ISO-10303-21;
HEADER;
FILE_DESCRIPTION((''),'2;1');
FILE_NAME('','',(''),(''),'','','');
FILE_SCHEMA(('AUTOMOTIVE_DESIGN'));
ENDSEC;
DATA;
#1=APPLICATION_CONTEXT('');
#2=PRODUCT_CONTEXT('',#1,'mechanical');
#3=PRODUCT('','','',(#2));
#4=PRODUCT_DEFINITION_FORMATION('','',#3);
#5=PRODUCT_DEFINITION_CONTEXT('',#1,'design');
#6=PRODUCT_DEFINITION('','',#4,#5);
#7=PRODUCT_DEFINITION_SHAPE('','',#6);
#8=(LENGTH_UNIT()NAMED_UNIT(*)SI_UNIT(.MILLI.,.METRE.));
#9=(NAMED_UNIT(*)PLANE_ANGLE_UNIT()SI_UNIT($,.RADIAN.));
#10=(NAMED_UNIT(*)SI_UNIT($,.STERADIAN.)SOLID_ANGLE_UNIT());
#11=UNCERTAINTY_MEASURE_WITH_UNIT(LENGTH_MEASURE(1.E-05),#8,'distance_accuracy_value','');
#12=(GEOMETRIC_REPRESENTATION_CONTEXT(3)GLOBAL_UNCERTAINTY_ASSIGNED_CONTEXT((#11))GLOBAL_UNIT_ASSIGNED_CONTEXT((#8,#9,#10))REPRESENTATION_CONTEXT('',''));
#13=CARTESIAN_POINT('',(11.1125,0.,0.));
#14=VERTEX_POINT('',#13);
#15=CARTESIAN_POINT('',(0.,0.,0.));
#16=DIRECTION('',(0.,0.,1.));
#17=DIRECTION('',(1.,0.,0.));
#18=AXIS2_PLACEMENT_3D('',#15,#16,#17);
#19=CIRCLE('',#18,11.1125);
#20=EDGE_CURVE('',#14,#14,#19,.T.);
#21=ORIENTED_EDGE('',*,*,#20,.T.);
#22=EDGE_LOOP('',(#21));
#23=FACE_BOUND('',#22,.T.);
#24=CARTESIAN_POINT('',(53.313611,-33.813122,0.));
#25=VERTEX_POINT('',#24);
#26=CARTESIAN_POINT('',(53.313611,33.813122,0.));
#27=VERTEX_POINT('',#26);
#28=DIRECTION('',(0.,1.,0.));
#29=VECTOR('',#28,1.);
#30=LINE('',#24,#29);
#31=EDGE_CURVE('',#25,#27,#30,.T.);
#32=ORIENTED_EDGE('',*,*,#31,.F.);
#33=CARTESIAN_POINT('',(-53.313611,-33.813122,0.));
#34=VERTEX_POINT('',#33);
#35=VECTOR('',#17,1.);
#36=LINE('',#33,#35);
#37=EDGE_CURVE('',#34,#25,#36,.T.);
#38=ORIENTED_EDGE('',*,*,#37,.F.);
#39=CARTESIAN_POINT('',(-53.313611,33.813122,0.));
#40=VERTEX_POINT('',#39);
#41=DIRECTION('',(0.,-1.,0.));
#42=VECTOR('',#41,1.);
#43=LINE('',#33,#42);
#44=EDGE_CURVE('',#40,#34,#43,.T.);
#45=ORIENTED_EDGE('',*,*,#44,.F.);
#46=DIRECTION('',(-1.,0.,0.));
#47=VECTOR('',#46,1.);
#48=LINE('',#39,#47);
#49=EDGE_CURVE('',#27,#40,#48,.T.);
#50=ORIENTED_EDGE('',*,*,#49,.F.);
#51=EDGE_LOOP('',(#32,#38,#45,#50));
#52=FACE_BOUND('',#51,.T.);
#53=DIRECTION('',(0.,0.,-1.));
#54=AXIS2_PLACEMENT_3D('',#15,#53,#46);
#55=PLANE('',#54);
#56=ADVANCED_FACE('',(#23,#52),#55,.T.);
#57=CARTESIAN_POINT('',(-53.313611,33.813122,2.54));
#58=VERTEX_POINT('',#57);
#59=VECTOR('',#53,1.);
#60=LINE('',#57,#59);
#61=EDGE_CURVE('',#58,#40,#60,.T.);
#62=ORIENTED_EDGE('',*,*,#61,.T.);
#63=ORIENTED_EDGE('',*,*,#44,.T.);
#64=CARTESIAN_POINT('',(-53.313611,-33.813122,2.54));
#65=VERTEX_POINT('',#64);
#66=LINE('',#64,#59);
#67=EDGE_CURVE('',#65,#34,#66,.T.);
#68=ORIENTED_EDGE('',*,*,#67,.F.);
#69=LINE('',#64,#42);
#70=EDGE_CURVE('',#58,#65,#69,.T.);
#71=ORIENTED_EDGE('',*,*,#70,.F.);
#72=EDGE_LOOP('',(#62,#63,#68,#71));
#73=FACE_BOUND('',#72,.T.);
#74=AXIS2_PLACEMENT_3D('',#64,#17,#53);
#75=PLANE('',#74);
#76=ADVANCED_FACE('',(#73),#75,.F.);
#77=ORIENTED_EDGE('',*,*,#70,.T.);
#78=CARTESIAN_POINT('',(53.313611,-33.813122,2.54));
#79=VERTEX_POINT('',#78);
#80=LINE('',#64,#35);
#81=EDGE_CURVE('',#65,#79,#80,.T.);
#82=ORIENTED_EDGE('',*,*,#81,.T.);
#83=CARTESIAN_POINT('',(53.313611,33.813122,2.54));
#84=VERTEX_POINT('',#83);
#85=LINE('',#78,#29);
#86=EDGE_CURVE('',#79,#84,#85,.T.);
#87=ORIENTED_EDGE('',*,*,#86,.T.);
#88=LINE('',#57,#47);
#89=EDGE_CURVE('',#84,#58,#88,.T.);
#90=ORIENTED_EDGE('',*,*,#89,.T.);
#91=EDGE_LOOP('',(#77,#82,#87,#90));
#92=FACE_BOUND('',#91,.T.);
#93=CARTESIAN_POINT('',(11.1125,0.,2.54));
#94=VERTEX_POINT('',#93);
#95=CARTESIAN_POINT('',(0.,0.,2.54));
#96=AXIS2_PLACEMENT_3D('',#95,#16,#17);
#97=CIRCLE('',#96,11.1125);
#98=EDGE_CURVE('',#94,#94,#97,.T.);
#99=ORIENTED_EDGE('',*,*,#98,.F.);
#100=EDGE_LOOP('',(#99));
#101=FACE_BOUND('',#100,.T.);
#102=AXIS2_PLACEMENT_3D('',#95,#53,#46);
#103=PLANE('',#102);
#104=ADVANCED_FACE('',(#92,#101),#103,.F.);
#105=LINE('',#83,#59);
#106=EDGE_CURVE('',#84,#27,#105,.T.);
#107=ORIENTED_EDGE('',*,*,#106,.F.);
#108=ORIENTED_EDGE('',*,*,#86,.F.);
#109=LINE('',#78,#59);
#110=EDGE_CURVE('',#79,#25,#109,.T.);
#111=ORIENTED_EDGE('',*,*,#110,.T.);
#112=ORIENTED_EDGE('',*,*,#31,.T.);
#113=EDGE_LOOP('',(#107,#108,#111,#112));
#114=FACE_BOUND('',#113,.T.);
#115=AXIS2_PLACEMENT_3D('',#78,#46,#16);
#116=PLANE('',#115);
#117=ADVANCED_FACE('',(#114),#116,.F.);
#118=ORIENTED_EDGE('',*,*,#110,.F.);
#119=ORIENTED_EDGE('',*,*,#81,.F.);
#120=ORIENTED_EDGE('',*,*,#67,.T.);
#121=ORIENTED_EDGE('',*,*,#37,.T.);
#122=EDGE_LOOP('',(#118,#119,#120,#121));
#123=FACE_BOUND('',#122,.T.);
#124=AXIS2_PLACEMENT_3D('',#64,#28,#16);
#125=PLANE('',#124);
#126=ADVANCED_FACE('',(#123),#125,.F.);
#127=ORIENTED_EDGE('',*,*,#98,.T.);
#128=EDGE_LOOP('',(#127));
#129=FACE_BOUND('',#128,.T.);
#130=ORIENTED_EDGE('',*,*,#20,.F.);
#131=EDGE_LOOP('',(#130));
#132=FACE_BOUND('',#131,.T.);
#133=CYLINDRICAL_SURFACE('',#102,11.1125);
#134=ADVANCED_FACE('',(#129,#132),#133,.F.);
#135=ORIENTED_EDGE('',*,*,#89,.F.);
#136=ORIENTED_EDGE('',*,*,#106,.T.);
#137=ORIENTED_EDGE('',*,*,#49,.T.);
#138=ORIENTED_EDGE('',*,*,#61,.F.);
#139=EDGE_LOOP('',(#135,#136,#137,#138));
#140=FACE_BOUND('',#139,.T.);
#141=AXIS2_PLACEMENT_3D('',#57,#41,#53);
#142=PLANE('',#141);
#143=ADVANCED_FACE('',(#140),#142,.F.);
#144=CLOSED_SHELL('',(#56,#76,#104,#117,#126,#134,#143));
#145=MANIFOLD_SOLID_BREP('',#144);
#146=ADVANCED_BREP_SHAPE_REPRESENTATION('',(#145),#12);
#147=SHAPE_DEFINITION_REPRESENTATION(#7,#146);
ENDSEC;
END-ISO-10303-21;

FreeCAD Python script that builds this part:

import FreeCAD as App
import Part
import Sketcher
from FreeCAD import Vector
Q = App.Units.Quantity

doc = App.newDocument("Part")
body = doc.addObject("PartDesign::Body", "Body")

sketch1 = doc.addObject("Sketcher::SketchObject", "Sketch")
body.addObject(sketch1)
sketch1.AttachmentSupport = (doc.XY_Plane, [""])
sketch1.MapMode = "FlatFace"
sketch1.addGeometry([
    Part.LineSegment(Vector(-53, 34, 0), Vector(-53, -34, 0)),
    Part.LineSegment(Vector(-53, -34, 0), Vector(53, -34, 0)),
    Part.LineSegment(Vector(53, -34, 0), Vector(53, 34, 0)),
    Part.LineSegment(Vector(53, 34, 0), Vector(-53, 34, 0)),
    Part.Circle(Vector(0, 0, 0), Vector(0, 0, 1), 11),
], False)
sketch1.addConstraint([
    Sketcher.Constraint("Coincident", 0, 2, 1, 1),
    Sketcher.Constraint("Coincident", 1, 2, 2, 1),
    Sketcher.Constraint("Coincident", 2, 2, 3, 1),
    Sketcher.Constraint("Coincident", 3, 2, 0, 1),
    Sketcher.Constraint("Vertical", 0),
    Sketcher.Constraint("Horizontal", 1),
    Sketcher.Constraint("Vertical", 2),
    Sketcher.Constraint("Horizontal", 3),
    Sketcher.Constraint("Coincident", 4, 3, -1, 1),
    Sketcher.Constraint("Symmetric", 0, 2, 2, 2, -1, 1),
    Sketcher.Constraint("Diameter", 4, Q("0.875 in")),
    Sketcher.Constraint("DistanceX", 1, 1, 1, 2, 106.627223),
    Sketcher.Constraint("DistanceY", 0, 2, 0, 1, 67.626244),
])
pad1 = doc.addObject("PartDesign::Pad", "Pad")
body.addObject(pad1)
pad1.Profile = sketch1
pad1.Length = Q("0.1 in")

doc.recompute()
